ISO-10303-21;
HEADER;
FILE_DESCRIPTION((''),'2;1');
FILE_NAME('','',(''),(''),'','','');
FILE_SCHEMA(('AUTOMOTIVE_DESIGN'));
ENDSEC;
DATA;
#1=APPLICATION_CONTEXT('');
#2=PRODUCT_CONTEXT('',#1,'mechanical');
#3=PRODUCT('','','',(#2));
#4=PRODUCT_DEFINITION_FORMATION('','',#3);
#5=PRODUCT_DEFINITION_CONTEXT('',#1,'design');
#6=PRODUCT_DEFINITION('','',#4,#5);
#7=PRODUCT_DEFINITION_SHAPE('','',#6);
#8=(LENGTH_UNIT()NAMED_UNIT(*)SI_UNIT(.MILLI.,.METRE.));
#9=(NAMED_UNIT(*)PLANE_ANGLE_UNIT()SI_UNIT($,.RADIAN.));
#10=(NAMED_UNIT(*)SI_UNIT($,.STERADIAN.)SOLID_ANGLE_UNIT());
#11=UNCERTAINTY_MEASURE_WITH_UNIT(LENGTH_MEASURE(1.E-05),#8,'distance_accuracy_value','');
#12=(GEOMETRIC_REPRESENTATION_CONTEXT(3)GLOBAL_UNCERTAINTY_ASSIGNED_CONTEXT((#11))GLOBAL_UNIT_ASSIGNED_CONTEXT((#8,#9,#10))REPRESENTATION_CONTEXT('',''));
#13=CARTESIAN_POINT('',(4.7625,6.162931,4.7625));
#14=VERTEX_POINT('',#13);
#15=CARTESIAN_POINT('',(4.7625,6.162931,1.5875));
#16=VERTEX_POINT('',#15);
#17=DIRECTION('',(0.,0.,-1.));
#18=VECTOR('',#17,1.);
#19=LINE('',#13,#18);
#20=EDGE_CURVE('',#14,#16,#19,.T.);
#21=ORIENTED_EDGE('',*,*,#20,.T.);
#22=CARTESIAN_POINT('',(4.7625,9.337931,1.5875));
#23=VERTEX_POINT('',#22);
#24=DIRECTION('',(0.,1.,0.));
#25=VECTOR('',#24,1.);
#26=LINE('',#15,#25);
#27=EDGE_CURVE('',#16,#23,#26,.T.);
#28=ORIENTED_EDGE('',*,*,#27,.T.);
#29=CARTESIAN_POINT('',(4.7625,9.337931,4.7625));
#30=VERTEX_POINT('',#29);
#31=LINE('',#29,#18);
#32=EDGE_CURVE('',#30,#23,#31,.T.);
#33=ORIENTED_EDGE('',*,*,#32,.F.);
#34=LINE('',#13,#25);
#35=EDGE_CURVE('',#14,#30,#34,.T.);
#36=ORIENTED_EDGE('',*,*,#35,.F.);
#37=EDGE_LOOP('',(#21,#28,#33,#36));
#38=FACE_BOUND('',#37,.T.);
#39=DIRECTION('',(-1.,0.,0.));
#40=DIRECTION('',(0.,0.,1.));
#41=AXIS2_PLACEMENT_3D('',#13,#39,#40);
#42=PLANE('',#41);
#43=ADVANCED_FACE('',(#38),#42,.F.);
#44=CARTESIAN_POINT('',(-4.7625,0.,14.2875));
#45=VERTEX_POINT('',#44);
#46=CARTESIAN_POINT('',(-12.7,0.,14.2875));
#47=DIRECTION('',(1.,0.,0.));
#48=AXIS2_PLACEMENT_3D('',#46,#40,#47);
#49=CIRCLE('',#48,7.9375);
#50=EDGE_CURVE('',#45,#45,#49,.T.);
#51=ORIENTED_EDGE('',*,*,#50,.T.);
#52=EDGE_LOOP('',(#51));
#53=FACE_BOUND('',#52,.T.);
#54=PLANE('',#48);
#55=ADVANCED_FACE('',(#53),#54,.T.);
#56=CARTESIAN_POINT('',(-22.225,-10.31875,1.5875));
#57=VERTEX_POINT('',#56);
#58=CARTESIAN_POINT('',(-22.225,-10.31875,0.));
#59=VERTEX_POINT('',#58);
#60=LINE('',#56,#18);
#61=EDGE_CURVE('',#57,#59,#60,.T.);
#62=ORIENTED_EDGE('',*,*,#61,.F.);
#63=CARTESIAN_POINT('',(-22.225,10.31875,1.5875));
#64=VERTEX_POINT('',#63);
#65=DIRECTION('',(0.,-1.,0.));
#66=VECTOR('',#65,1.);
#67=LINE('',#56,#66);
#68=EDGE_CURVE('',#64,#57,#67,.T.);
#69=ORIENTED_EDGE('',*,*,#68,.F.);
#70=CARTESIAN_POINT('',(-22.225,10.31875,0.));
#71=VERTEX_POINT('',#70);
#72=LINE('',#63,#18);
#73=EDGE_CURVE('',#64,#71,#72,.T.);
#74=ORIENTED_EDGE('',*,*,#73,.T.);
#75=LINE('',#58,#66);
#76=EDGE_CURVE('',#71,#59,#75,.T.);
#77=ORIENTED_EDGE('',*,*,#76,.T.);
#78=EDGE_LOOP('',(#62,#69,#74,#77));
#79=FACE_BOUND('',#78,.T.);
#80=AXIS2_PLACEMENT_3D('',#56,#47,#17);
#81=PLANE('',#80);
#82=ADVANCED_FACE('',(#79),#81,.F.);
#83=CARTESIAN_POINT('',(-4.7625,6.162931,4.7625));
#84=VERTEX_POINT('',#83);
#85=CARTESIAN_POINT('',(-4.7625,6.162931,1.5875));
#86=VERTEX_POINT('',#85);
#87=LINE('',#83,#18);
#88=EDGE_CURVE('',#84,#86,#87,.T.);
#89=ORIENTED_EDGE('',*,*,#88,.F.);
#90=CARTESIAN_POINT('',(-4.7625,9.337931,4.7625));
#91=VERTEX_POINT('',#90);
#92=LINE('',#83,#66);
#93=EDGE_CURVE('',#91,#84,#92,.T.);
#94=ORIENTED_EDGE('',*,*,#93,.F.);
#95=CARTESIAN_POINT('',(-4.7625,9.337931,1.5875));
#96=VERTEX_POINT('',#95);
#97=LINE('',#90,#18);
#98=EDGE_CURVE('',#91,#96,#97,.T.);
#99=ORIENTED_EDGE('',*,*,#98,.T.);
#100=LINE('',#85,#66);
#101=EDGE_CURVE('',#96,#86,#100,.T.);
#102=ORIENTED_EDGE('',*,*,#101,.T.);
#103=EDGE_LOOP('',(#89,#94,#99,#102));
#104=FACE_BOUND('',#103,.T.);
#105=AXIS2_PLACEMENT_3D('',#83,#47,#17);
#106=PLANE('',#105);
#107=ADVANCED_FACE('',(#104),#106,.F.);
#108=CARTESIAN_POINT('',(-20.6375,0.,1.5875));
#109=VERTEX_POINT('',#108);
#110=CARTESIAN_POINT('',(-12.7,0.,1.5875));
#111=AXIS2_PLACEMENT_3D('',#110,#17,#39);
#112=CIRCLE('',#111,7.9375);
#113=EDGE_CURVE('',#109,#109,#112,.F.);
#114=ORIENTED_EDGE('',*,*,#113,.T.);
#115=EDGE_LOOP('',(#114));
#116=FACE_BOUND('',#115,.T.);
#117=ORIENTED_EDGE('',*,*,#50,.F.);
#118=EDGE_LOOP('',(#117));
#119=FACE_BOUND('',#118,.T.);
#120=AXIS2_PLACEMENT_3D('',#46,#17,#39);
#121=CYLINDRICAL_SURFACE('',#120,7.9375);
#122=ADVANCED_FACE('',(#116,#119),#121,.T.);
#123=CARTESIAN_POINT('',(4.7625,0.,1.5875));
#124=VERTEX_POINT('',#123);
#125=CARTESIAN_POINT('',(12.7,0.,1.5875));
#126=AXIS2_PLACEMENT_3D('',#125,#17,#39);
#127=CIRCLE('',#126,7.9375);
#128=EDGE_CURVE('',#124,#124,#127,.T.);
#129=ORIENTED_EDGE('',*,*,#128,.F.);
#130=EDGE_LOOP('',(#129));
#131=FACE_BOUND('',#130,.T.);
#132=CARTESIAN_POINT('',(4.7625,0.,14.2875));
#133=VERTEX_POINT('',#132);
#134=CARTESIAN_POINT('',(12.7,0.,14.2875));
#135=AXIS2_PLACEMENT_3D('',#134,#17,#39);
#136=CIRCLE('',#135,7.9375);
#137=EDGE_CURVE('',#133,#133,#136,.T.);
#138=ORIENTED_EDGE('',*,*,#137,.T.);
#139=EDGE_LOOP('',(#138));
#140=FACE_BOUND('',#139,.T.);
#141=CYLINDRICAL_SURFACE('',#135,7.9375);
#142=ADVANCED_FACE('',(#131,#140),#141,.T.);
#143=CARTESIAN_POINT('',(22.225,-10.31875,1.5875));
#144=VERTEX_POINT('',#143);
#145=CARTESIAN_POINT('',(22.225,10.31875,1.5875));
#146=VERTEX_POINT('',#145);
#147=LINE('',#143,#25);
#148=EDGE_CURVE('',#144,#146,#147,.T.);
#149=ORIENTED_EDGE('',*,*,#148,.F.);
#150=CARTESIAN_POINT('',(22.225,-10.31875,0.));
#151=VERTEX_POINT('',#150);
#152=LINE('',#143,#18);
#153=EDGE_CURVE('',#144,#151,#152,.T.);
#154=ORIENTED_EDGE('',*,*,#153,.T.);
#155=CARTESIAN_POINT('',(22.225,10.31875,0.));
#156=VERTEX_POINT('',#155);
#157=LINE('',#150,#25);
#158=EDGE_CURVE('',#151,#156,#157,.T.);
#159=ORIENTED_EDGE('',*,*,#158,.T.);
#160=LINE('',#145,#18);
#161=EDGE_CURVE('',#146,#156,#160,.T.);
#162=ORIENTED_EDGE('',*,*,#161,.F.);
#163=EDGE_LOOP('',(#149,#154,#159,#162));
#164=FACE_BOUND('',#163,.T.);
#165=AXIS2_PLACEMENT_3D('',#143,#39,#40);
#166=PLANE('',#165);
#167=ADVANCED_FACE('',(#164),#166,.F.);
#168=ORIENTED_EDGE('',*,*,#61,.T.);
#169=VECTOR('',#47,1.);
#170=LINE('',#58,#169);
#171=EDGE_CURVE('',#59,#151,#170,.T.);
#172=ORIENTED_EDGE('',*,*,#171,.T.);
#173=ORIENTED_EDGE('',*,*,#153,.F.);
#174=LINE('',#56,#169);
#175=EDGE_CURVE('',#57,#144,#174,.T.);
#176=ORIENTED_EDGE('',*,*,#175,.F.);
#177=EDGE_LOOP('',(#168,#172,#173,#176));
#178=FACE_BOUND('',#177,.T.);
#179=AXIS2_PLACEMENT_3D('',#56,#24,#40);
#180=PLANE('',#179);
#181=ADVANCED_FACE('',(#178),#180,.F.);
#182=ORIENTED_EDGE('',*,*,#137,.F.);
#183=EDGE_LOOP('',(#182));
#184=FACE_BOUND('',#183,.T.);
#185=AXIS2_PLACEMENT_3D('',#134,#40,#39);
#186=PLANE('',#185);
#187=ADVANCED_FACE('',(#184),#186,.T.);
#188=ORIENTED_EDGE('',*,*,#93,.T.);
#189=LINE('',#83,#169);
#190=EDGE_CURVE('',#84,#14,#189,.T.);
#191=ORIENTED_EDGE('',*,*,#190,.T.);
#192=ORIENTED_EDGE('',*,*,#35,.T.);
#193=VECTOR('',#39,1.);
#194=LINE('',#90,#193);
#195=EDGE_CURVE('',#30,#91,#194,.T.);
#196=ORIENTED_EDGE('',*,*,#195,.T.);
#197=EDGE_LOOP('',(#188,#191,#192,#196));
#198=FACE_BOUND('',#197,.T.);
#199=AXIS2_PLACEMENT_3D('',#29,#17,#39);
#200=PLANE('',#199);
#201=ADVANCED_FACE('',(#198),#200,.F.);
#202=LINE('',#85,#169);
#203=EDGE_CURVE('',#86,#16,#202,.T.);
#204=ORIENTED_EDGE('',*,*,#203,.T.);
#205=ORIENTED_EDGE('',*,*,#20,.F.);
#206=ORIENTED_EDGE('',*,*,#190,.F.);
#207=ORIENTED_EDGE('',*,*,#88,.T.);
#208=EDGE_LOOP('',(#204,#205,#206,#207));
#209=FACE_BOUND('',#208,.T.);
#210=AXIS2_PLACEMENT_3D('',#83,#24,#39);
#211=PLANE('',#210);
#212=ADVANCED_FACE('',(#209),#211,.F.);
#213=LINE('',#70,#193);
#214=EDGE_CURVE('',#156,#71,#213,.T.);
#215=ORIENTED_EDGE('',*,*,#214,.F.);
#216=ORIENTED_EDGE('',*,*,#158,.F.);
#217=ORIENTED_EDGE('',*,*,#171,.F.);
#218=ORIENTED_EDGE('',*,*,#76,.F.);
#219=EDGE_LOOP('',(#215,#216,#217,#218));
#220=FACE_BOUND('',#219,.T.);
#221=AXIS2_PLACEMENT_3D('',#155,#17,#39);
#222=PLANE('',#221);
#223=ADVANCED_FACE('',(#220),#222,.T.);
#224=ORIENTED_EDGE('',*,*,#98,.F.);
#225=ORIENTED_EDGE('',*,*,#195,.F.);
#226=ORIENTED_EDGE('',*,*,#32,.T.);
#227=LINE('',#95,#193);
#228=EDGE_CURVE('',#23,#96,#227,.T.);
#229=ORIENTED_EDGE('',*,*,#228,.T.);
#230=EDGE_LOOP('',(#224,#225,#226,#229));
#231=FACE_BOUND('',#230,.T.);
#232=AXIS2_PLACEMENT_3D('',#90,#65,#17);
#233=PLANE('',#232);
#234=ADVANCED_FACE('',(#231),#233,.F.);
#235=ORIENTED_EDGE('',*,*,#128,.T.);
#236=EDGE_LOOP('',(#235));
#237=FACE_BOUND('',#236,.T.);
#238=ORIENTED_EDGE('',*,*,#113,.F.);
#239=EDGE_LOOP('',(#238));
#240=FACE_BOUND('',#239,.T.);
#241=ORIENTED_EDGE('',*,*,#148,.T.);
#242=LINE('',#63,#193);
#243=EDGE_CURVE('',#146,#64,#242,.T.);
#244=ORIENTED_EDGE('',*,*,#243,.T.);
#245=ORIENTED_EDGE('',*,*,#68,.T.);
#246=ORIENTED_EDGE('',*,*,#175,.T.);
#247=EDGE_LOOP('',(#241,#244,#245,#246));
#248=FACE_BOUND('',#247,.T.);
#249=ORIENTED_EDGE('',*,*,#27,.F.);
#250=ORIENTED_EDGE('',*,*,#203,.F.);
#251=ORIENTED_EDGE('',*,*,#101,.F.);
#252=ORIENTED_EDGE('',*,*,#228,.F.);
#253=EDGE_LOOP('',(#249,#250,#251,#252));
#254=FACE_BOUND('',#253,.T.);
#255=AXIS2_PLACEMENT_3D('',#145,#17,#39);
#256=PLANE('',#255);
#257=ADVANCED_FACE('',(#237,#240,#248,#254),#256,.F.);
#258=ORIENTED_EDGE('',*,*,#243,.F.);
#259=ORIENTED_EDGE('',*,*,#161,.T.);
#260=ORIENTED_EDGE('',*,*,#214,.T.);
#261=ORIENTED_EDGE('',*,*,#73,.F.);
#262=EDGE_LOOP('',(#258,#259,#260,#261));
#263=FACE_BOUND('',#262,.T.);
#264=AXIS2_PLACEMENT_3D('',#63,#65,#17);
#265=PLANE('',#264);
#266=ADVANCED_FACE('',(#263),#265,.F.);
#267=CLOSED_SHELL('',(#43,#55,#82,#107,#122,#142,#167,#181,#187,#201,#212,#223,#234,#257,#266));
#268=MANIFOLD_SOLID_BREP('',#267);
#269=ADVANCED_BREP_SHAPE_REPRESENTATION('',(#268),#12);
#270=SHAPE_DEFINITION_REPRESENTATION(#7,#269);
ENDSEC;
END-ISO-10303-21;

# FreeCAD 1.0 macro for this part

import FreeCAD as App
import Part
import Sketcher
Q = App.Units.Quantity


def add_polygon(sketch, points):
    """Adds a closed chain of lines whose ends are joined by coincident constraints."""
    first, n = sketch.GeometryCount, len(points)
    for a, b in zip(points, points[1:] + points[:1]):
        sketch.addGeometry(Part.LineSegment(App.Vector(*a, 0), App.Vector(*b, 0)), False)
    for i in range(n):
        sketch.addConstraint(Sketcher.Constraint("Coincident", first + i, 2, first + (i + 1) % n, 1))

doc = App.newDocument("Part")
body = doc.addObject("PartDesign::Body", "Body")

# Sketch on XY plane
sketch1 = body.newObject("Sketcher::SketchObject", "Sketch")
sketch1.AttachmentSupport = (doc.getObject("XY_Plane"), [""])
sketch1.MapMode = "FlatFace"
add_polygon(sketch1, [(-22, 10), (-22, -10), (22, -10), (22, 10)])  # lines 0-3
sketch1.addConstraint(Sketcher.Constraint("Vertical", 0))
sketch1.addConstraint(Sketcher.Constraint("Horizontal", 1))
sketch1.addConstraint(Sketcher.Constraint("Vertical", 2))
sketch1.addConstraint(Sketcher.Constraint("Horizontal", 3))
sketch1.addConstraint(Sketcher.Constraint("Symmetric", 0, 2, 2, 2, -1, 1))
sketch1.addConstraint(Sketcher.Constraint("DistanceX", 1, 1, 1, 2, Q("1.75 in")))
sketch1.addConstraint(Sketcher.Constraint("DistanceY", 0, 2, 0, 1, Q("0.8125 in")))
pad1 = body.newObject("PartDesign::Pad", "Pad")
pad1.Profile = sketch1
pad1.Length = Q("0.0625 in")

# Sketch on XY plane
sketch2 = body.newObject("Sketcher::SketchObject", "Sketch001")
sketch2.AttachmentSupport = (doc.getObject("XY_Plane"), [""])
sketch2.MapMode = "FlatFace"
sketch2.AttachmentOffset = App.Placement(App.Vector(0, 0, 0.0625 * 25.4), App.Rotation())
sketch2.addGeometry(Part.Circle(App.Vector(-13, 0, 0), App.Vector(0, 0, 1), 8), False)
sketch2.addConstraint(Sketcher.Constraint("PointOnObject", 0, 3, -1))
sketch2.addConstraint(Sketcher.Constraint("Diameter", 0, Q("0.625 in")))
sketch2.addConstraint(Sketcher.Constraint("DistanceX", 0, 3, -1, 1, Q("0.5 in")))
pad2 = body.newObject("PartDesign::Pad", "Pad001")
pad2.Profile = sketch2
pad2.Length = Q("0.5 in")
doc.recompute()

mirrored = body.newObject("PartDesign::Mirrored", "Mirrored")
mirrored.Originals = [pad2]
mirrored.MirrorPlane = (doc.getObject("YZ_Plane"), [""])
body.Tip = mirrored

# Sketch on XY plane
sketch3 = body.newObject("Sketcher::SketchObject", "Sketch002")
sketch3.AttachmentSupport = (doc.getObject("XY_Plane"), [""])
sketch3.MapMode = "FlatFace"
sketch3.AttachmentOffset = App.Placement(App.Vector(0, 0, 0.0625 * 25.4), App.Rotation())
add_polygon(sketch3, [(-4.8, 9.3), (-4.8, 6.2), (4.8, 6.2), (4.8, 9.3)])  # lines 0-3
sketch3.addConstraint(Sketcher.Constraint("Vertical", 0))
sketch3.addConstraint(Sketcher.Constraint("Horizontal", 1))
sketch3.addConstraint(Sketcher.Constraint("Vertical", 2))
sketch3.addConstraint(Sketcher.Constraint("Horizontal", 3))
sketch3.addConstraint(Sketcher.Constraint("DistanceX", 1, 1, 1, 2, Q("0.375 in")))
sketch3.addConstraint(Sketcher.Constraint("DistanceY", 0, 2, 0, 1, Q("0.125 in")))
sketch3.addConstraint(Sketcher.Constraint("DistanceX", 0, 2, -1, 1, Q("0.1875 in")))
sketch3.addConstraint(Sketcher.Constraint("DistanceY", -1, 1, 0, 2, 6.162931))
pad3 = body.newObject("PartDesign::Pad", "Pad002")
pad3.Profile = sketch3
pad3.Length = Q("0.125 in")

doc.recompute()
